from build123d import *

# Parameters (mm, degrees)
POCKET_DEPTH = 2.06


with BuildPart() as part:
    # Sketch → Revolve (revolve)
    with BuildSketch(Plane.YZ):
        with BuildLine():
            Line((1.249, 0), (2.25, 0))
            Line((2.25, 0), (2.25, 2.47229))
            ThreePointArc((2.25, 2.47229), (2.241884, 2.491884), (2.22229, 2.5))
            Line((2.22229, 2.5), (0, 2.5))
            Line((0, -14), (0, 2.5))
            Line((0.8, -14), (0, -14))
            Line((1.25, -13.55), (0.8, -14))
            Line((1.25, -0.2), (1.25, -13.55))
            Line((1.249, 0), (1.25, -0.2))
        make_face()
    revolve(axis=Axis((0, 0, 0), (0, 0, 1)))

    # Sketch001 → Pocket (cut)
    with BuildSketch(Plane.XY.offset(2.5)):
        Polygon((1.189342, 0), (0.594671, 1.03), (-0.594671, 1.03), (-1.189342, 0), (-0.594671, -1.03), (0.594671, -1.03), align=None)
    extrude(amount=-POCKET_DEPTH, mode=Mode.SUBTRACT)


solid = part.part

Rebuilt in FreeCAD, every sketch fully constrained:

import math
import FreeCAD as App
import Part
import Sketcher
from FreeCAD import Vector
Q = App.Units.Quantity


def add_polygon(sketch, points):
    """Adds a closed chain of lines whose ends are joined by coincident constraints."""
    first, n = sketch.GeometryCount, len(points)
    for a, b in zip(points, points[1:] + points[:1]):
        sketch.addGeometry(Part.LineSegment(App.Vector(*a, 0), App.Vector(*b, 0)), False)
    for i in range(n):
        sketch.addConstraint(Sketcher.Constraint("Coincident", first + i, 2, first + (i + 1) % n, 1))

doc = App.newDocument("Part")
body = doc.addObject("PartDesign::Body", "Body")

# Sketch on YZ plane
sketch1 = body.newObject("Sketcher::SketchObject", "Sketch")
sketch1.AttachmentSupport = (doc.getObject("YZ_Plane"), [""])
sketch1.MapMode = "FlatFace"
sketch1.addGeometry(Part.LineSegment(Vector(1.249, 0, 0), Vector(2.25, 0, 0)), False)
sketch1.addGeometry(Part.LineSegment(Vector(2.25, 0, 0), Vector(2.25, 2.472, 0)), False)
sketch1.addGeometry(Part.ArcOfCircle(Part.Circle(Vector(2.222, 2.472, 0), Vector(0, 0, 1), 0.028), math.radians(0), math.radians(90)), False)
sketch1.addGeometry(Part.LineSegment(Vector(2.222, 2.5, 0), Vector(0, 2.5, 0)), False)
sketch1.addGeometry(Part.LineSegment(Vector(0, 2.5, 0), Vector(0, -14, 0)), False)
sketch1.addGeometry(Part.LineSegment(Vector(0, -14, 0), Vector(0.8, -14, 0)), False)
sketch1.addGeometry(Part.LineSegment(Vector(0.8, -14, 0), Vector(1.25, -13.55, 0)), False)
sketch1.addGeometry(Part.LineSegment(Vector(1.25, -13.55, 0), Vector(1.25, -0.2, 0)), False)
sketch1.addGeometry(Part.LineSegment(Vector(1.25, -0.2, 0), Vector(1.249, 0, 0)), False)
sketch1.addConstraint(Sketcher.Constraint("Coincident", 0, 2, 1, 1))
sketch1.addConstraint(Sketcher.Constraint("Coincident", 1, 2, 2, 1))
sketch1.addConstraint(Sketcher.Constraint("Coincident", 2, 2, 3, 1))
sketch1.addConstraint(Sketcher.Constraint("Coincident", 3, 2, 4, 1))
sketch1.addConstraint(Sketcher.Constraint("Coincident", 4, 2, 5, 1))
sketch1.addConstraint(Sketcher.Constraint("Coincident", 5, 2, 6, 1))
sketch1.addConstraint(Sketcher.Constraint("Coincident", 6, 2, 7, 1))
sketch1.addConstraint(Sketcher.Constraint("Coincident", 7, 2, 8, 1))
sketch1.addConstraint(Sketcher.Constraint("Coincident", 8, 2, 0, 1))
sketch1.addConstraint(Sketcher.Constraint("Horizontal", 0))
sketch1.addConstraint(Sketcher.Constraint("Vertical", 1))
sketch1.addConstraint(Sketcher.Constraint("Horizontal", 3))
sketch1.addConstraint(Sketcher.Constraint("Vertical", 4))
sketch1.addConstraint(Sketcher.Constraint("Horizontal", 5))
sketch1.addConstraint(Sketcher.Constraint("Vertical", 7))
sketch1.addConstraint(Sketcher.Constraint("PointOnObject", 0, 2, -1))
sketch1.addConstraint(Sketcher.Constraint("PointOnObject", 3, 2, -2))
sketch1.addConstraint(Sketcher.Constraint("Horizontal", 2, 3, 1, 2))
sketch1.addConstraint(Sketcher.Constraint("Angle", 6, Q("45 deg")))
sketch1.addConstraint(Sketcher.Constraint("DistanceX", 5, 1, 5, 2, Q("0.8 mm")))
sketch1.addConstraint(Sketcher.Constraint("DistanceY", 4, 2, 4, 1, Q("16.5 mm")))
sketch1.addConstraint(Sketcher.Constraint("DistanceY", 4, 2, -1, 1, Q("14 mm")))
sketch1.addConstraint(Sketcher.Constraint("DistanceX", 6, 2, 0, 2, Q("1 mm")))
sketch1.addConstraint(Sketcher.Constraint("DistanceY", 7, 1, 7, 2, Q("13.35 mm")))
sketch1.addConstraint(Sketcher.Constraint("DistanceY", 7, 2, -1, 1, Q("0.2 mm")))
sketch1.addConstraint(Sketcher.Constraint("DistanceX", 0, 1, 0, 2, Q("1.001 mm")))
sketch1.addConstraint(Sketcher.Constraint("Radius", 2, Q("0.02771 mm")))
sketch1.addConstraint(Sketcher.Constraint("DistanceX", 3, 2, 3, 1, Q("2.22229 mm")))
revolution = body.newObject("PartDesign::Revolution", "Revolution")
revolution.Profile = sketch1
revolution.ReferenceAxis = (sketch1, ["V_Axis"])
revolution.Angle = 360

# Sketch on XY plane
sketch2 = body.newObject("Sketcher::SketchObject", "Sketch001")
sketch2.AttachmentSupport = (doc.getObject("XY_Plane"), [""])
sketch2.MapMode = "FlatFace"
sketch2.AttachmentOffset = App.Placement(Vector(0, 0, 2.5), App.Rotation())
add_polygon(sketch2, [(1.2, 0), (0.6, 1), (-0.6, 1), (-1.2, 0), (-0.6, -1), (0.6, -1)])  # lines 0-5
sketch2.addConstraint(Sketcher.Constraint("Horizontal", 1))
sketch2.addConstraint(Sketcher.Constraint("Horizontal", 4))
sketch2.addConstraint(Sketcher.Constraint("Symmetric", 0, 2, 3, 2, -1, 1))
sketch2.addConstraint(Sketcher.Constraint("Symmetric", 2, 2, 5, 2, -1, 1))
sketch2.addConstraint(Sketcher.Constraint("PointOnObject", 2, 2, -1))
sketch2.addConstraint(Sketcher.Constraint("Parallel", 2, 5))
sketch2.addConstraint(Sketcher.Constraint("Vertical", 1, 2, 3, 2))
sketch2.addConstraint(Sketcher.Constraint("Angle", 0, Q("120.000009 deg")))
sketch2.addConstraint(Sketcher.Constraint("DistanceY", -1, 1, 0, 2, Q("1.03 mm")))
sketch2.addConstraint(Sketcher.Constraint("DistanceX", 1, 2, 1, 1, Q("1.189342 mm")))
pocket1 = body.newObject("PartDesign::Pocket", "Pocket")
pocket1.Profile = sketch2
pocket1.Length = 2.06

doc.recompute()
